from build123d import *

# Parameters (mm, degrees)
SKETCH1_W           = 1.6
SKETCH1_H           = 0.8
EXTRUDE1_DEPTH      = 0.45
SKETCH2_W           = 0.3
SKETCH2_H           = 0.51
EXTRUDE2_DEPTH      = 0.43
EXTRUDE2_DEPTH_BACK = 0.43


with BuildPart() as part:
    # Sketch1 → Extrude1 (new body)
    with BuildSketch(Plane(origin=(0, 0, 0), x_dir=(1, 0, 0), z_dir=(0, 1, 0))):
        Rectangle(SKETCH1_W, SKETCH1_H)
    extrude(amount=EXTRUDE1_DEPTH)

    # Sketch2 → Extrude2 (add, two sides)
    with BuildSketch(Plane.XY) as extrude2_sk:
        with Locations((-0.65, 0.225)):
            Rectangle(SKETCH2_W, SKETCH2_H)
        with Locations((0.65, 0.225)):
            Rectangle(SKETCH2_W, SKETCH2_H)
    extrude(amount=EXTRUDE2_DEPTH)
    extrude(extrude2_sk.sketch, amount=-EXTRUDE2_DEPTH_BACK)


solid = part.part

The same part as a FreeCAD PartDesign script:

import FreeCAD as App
import Part
import Sketcher

doc = App.newDocument("Part")
body = doc.addObject("PartDesign::Body", "Body")

# Sketch on XZ plane
sketch1 = body.newObject("Sketcher::SketchObject", "Sketch")
sketch1.AttachmentSupport = (doc.getObject("XZ_Plane"), [""])
sketch1.MapMode = "FlatFace"
sketch1.addGeometry([
    Part.LineSegment(App.Vector(-0.8, -0.4, 0), App.Vector(-0.8, 0.4, 0)),
    Part.LineSegment(App.Vector(-0.8, 0.4, 0), App.Vector(0.8, 0.4, 0)),
    Part.LineSegment(App.Vector(0.8, 0.4, 0), App.Vector(0.8, -0.4, 0)),
    Part.LineSegment(App.Vector(0.8, -0.4, 0), App.Vector(-0.8, -0.4, 0)),
], False)
sketch1.addConstraint([
    Sketcher.Constraint("Coincident", 0, 2, 1, 1),
    Sketcher.Constraint("Coincident", 1, 2, 2, 1),
    Sketcher.Constraint("Coincident", 2, 2, 3, 1),
    Sketcher.Constraint("Coincident", 3, 2, 0, 1),
    Sketcher.Constraint("Vertical", 0),
    Sketcher.Constraint("Horizontal", 1),
    Sketcher.Constraint("Vertical", 2),
    Sketcher.Constraint("Horizontal", 3),
    Sketcher.Constraint("Symmetric", 0, 2, 2, 2, -1, 1),
    Sketcher.Constraint("DistanceX", 1, 1, 1, 2, 1.6),
    Sketcher.Constraint("DistanceY", 0, 1, 0, 2, 0.8),
])
pad1 = body.newObject("PartDesign::Pad", "Pad")
pad1.Profile = sketch1
pad1.Length = 0.45
pad1.Reversed = True

# Sketch on XY plane
sketch2 = body.newObject("Sketcher::SketchObject", "Sketch001")
sketch2.AttachmentSupport = (doc.getObject("XY_Plane"), [""])
sketch2.MapMode = "FlatFace"
sketch2.addGeometry([
    Part.LineSegment(App.Vector(-0.8, 0.48, 0), App.Vector(-0.8, -0.03, 0)),  # 0
    Part.LineSegment(App.Vector(-0.8, -0.03, 0), App.Vector(-0.5, -0.03, 0)),  # 1
    Part.LineSegment(App.Vector(-0.5, -0.03, 0), App.Vector(-0.5, 0.48, 0)),  # 2
    Part.LineSegment(App.Vector(-0.5, 0.48, 0), App.Vector(-0.8, 0.48, 0)),  # 3
    Part.LineSegment(App.Vector(0.5, 0.48, 0), App.Vector(0.5, -0.03, 0)),  # 4
    Part.LineSegment(App.Vector(0.5, -0.03, 0), App.Vector(0.8, -0.03, 0)),  # 5
    Part.LineSegment(App.Vector(0.8, -0.03, 0), App.Vector(0.8, 0.48, 0)),  # 6
    Part.LineSegment(App.Vector(0.8, 0.48, 0), App.Vector(0.5, 0.48, 0)),  # 7
], False)
sketch2.addConstraint([
    Sketcher.Constraint("Coincident", 0, 2, 1, 1),
    Sketcher.Constraint("Coincident", 1, 2, 2, 1),
    Sketcher.Constraint("Coincident", 2, 2, 3, 1),
    Sketcher.Constraint("Coincident", 3, 2, 0, 1),
    Sketcher.Constraint("Coincident", 4, 2, 5, 1),
    Sketcher.Constraint("Coincident", 5, 2, 6, 1),
    Sketcher.Constraint("Coincident", 6, 2, 7, 1),
    Sketcher.Constraint("Coincident", 7, 2, 4, 1),
    Sketcher.Constraint("Vertical", 0),
    Sketcher.Constraint("Horizontal", 1),
    Sketcher.Constraint("Vertical", 2),
    Sketcher.Constraint("Horizontal", 3),
    Sketcher.Constraint("Vertical", 4),
    Sketcher.Constraint("Horizontal", 5),
    Sketcher.Constraint("Vertical", 6),
    Sketcher.Constraint("Horizontal", 7),
    Sketcher.Constraint("Symmetric", 1, 2, 4, 2, -2),
    Sketcher.Constraint("Symmetric", 3, 2, 6, 2, -2),
    Sketcher.Constraint("DistanceX", 1, 1, 1, 2, 0.3),
    Sketcher.Constraint("DistanceX", 1, 2, 4, 2, 1.0),
    Sketcher.Constraint("DistanceY", 0, 2, 0, 1, 0.51),
    Sketcher.Constraint("DistanceY", 0, 2, -1, 1, 0.03),
])
pad2 = body.newObject("PartDesign::Pad", "Pad001")
pad2.Profile = sketch2
pad2.Type = "TwoLengths"
pad2.Length = 0.43
pad2.Length2 = 0.43

doc.recompute()
